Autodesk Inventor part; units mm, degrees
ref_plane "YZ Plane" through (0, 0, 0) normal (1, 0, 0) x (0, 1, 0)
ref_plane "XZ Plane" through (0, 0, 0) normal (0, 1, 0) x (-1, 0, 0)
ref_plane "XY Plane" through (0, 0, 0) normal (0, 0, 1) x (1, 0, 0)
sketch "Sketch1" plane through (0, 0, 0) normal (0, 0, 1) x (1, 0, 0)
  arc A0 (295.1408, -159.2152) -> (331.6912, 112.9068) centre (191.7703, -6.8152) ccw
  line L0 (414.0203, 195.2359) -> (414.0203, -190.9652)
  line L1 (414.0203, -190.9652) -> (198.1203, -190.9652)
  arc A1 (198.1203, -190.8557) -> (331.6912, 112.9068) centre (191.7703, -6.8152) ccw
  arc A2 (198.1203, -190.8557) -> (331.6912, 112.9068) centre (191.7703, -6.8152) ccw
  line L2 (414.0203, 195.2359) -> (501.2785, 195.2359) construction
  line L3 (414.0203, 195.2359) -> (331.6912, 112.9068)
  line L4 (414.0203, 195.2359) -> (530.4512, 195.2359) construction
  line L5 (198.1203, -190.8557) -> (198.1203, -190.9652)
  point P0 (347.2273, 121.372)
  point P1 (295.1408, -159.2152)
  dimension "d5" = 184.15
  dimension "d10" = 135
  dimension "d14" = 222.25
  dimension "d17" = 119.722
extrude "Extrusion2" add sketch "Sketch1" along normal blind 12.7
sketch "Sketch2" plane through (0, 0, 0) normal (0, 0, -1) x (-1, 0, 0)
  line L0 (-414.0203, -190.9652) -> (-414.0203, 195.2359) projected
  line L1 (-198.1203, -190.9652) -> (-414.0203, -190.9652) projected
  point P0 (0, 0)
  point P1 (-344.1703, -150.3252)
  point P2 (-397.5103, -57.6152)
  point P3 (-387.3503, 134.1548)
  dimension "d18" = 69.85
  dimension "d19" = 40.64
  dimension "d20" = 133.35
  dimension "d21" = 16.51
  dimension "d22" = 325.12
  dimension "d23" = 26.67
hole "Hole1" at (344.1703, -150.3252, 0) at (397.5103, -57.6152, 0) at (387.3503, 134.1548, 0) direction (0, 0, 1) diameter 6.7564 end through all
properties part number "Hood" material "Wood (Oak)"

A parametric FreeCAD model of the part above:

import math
import FreeCAD as App
import Part
import Sketcher
from FreeCAD import Vector
Q = App.Units.Quantity

doc = App.newDocument("Part")
body = doc.addObject("PartDesign::Body", "Body")

# Sketch on XY plane
sketch1 = body.newObject("Sketcher::SketchObject", "Sketch")
sketch1.AttachmentSupport = (doc.getObject("XY_Plane"), [""])
sketch1.MapMode = "FlatFace"
sketch1.addGeometry(Part.ArcOfCircle(Part.Circle(Vector(191.77, -6.82, 0), Vector(0, 0, 1), 184.15), math.radians(-56), math.radians(41)), False)
sketch1.addGeometry(Part.ArcOfCircle(Part.Circle(Vector(191.77, -6.82, 0), Vector(0, 0, 1), 184.15), math.radians(-88), math.radians(-56)), False)
sketch1.addGeometry(Part.LineSegment(Vector(198.12, -190.86, 0), Vector(198.12, -190.97, 0)), False)
sketch1.addGeometry(Part.LineSegment(Vector(198.12, -190.97, 0), Vector(414.02, -190.97, 0)), False)
sketch1.addGeometry(Part.LineSegment(Vector(414.02, -190.97, 0), Vector(414.02, 195.24, 0)), False)
sketch1.addGeometry(Part.LineSegment(Vector(414.02, 195.24, 0), Vector(331.69, 112.91, 0)), False)
sketch1.addConstraint(Sketcher.Constraint("Tangent", 0, 1, 1, 2))
sketch1.addConstraint(Sketcher.Constraint("Coincident", 1, 1, 2, 1))
sketch1.addConstraint(Sketcher.Constraint("Coincident", 2, 2, 3, 1))
sketch1.addConstraint(Sketcher.Constraint("Coincident", 3, 2, 4, 1))
sketch1.addConstraint(Sketcher.Constraint("Coincident", 4, 2, 5, 1))
sketch1.addConstraint(Sketcher.Constraint("Coincident", 5, 2, 0, 2))
sketch1.addConstraint(Sketcher.Constraint("Vertical", 2))
sketch1.addConstraint(Sketcher.Constraint("Horizontal", 3))
sketch1.addConstraint(Sketcher.Constraint("Vertical", 4))
sketch1.addConstraint(Sketcher.Constraint("Equal", 0, 1))
sketch1.addConstraint(Sketcher.Constraint("Radius", 0, Q("7.25 in")))
sketch1.addConstraint(Sketcher.Constraint("Angle", 5, Q("-135 deg")))
sketch1.addConstraint(Sketcher.Constraint("DistanceY", 2, 2, 0, 3, Q("7.25 in")))
sketch1.addConstraint(Sketcher.Constraint("DistanceX", 0, 3, 3, 2, Q("8.75 in")))
sketch1.addConstraint(Sketcher.Constraint("DistanceX", 3, 1, 3, 2, Q("8.5 in")))
sketch1.addConstraint(Sketcher.Constraint("DistanceY", 0, 1, 0, 3, Q("6 in")))
sketch1.addConstraint(Sketcher.Constraint("DistanceX", -1, 1, 2, 2, Q("7.8 in")))
sketch1.addConstraint(Sketcher.Constraint("DistanceY", 0, 3, 5, 2, Q("119.722 mm")))
sketch1.addConstraint(Sketcher.Constraint("DistanceY", 1, 1, -1, 1, Q("7.514 in")))
pad1 = body.newObject("PartDesign::Pad", "Pad")
pad1.Profile = sketch1
pad1.Length = Q("0.5 in")

# Sketch on XY plane
sketch2 = body.newObject("Sketcher::SketchObject", "Sketch001")
sketch2.AttachmentSupport = (doc.getObject("XY_Plane"), [""])
sketch2.MapMode = "FlatFace"
sketch2.addGeometry(Part.Circle(Vector(344.2, -150.3, 0), Vector(0, 0, 1), 3.4), False)
sketch2.addGeometry(Part.Circle(Vector(397.5, -57.6, 0), Vector(0, 0, 1), 3.4), False)
sketch2.addGeometry(Part.Circle(Vector(387.4, 134.2, 0), Vector(0, 0, 1), 3.4), False)
sketch2.addConstraint(Sketcher.Constraint("Equal", 0, 1))
sketch2.addConstraint(Sketcher.Constraint("Equal", 1, 2))
sketch2.addConstraint(Sketcher.Constraint("Diameter", 0, Q("0.266 in")))
sketch2.addConstraint(Sketcher.Constraint("DistanceX", 0, 3, 1, 3, Q("2.1 in")))
sketch2.addConstraint(Sketcher.Constraint("DistanceX", 2, 3, 1, 3, Q("0.4 in")))
sketch2.addConstraint(Sketcher.Constraint("DistanceY", 0, 3, 2, 3, Q("11.2 in")))
sketch2.addConstraint(Sketcher.Constraint("DistanceX", -1, 1, 0, 3, Q("13.55 in")))
sketch2.addConstraint(Sketcher.Constraint("DistanceY", 0, 3, 1, 3, Q("3.65 in")))
sketch2.addConstraint(Sketcher.Constraint("DistanceY", 0, 3, -1, 1, Q("150.3252 mm")))
doc.recompute()
hole = body.newObject("PartDesign::Hole", "Hole")
hole.Profile = sketch2
hole.ThreadType = "None"
hole.Diameter = Q("0.266 in")
hole.DepthType = "ThroughAll"
hole.Reversed = True

doc.recompute()
